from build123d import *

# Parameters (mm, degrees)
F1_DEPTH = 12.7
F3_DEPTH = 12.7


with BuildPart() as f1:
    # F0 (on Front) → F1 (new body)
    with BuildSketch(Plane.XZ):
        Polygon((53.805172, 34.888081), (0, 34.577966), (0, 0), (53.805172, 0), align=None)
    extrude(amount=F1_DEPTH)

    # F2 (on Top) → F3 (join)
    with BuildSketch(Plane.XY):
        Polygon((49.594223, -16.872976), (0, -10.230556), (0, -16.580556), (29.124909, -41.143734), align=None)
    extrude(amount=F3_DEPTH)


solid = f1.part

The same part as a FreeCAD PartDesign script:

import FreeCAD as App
import Part
import Sketcher

V = App.Vector
Q = App.Units.Quantity


def add_polygon(sketch, points):
    """Adds a closed chain of lines whose ends are joined by coincident constraints."""
    first, n = sketch.GeometryCount, len(points)
    for a, b in zip(points, points[1:] + points[:1]):
        sketch.addGeometry(Part.LineSegment(App.Vector(*a, 0), App.Vector(*b, 0)), False)
    for i in range(n):
        sketch.addConstraint(Sketcher.Constraint("Coincident", first + i, 2, first + (i + 1) % n, 1))

doc = App.newDocument("Part")
body = doc.addObject("PartDesign::Body", "Body")

# Sketch on XZ plane
sketch1 = body.newObject("Sketcher::SketchObject", "Sketch")
sketch1.AttachmentSupport = (doc.getObject("XZ_Plane"), [""])
sketch1.MapMode = "FlatFace"
add_polygon(sketch1, [(53.805172, 34.888081), (0, 34.577966), (0, 0), (53.805172, 0)])  # lines 0-3
sketch1.addConstraint([
    Sketcher.Constraint("Vertical", 1),
    Sketcher.Constraint("Horizontal", 2),
    Sketcher.Constraint("Vertical", 3),
    Sketcher.Constraint("Coincident", 1, 2, -1, 1),
    Sketcher.Constraint("DistanceY", 3, 1, 3, 2, Q("34.888081 mm")),
    Sketcher.Constraint("DistanceX", 2, 1, 2, 2, Q("53.805172 mm")),
    Sketcher.Constraint("DistanceY", 1, 2, 1, 1, Q("34.577966 mm")),
])
pad1 = body.newObject("PartDesign::Pad", "Pad")
pad1.Profile = sketch1
pad1.Length = Q("0.5 in")

# Sketch on XY plane
sketch2 = body.newObject("Sketcher::SketchObject", "Sketch001")
sketch2.AttachmentSupport = (doc.getObject("XY_Plane"), [""])
sketch2.MapMode = "FlatFace"
add_polygon(sketch2, [(49.594223, -16.872976), (0, -10.230556), (0, -16.580556), (29.124909, -41.143734)])  # lines 0-3
sketch2.addConstraint([
    Sketcher.Constraint("Vertical", 1),
    Sketcher.Constraint("PointOnObject", 0, 2, -2),
    Sketcher.Constraint("Perpendicular", 2, 3),
    Sketcher.Constraint("Distance", 2, Q("1.5 in")),
    Sketcher.Constraint("DistanceY", 1, 2, 1, 1, Q("0.25 in")),
    Sketcher.Constraint("Distance", 3, Q("1.25 in")),
    Sketcher.Constraint("DistanceX", -1, 1, 2, 2, Q("29.124909 mm")),
    Sketcher.Constraint("DistanceY", 0, 2, -1, 1, Q("10.230556 mm")),
])
pad2 = body.newObject("PartDesign::Pad", "Pad001")
pad2.Profile = sketch2
pad2.Length = Q("0.5 in")

doc.recompute()
